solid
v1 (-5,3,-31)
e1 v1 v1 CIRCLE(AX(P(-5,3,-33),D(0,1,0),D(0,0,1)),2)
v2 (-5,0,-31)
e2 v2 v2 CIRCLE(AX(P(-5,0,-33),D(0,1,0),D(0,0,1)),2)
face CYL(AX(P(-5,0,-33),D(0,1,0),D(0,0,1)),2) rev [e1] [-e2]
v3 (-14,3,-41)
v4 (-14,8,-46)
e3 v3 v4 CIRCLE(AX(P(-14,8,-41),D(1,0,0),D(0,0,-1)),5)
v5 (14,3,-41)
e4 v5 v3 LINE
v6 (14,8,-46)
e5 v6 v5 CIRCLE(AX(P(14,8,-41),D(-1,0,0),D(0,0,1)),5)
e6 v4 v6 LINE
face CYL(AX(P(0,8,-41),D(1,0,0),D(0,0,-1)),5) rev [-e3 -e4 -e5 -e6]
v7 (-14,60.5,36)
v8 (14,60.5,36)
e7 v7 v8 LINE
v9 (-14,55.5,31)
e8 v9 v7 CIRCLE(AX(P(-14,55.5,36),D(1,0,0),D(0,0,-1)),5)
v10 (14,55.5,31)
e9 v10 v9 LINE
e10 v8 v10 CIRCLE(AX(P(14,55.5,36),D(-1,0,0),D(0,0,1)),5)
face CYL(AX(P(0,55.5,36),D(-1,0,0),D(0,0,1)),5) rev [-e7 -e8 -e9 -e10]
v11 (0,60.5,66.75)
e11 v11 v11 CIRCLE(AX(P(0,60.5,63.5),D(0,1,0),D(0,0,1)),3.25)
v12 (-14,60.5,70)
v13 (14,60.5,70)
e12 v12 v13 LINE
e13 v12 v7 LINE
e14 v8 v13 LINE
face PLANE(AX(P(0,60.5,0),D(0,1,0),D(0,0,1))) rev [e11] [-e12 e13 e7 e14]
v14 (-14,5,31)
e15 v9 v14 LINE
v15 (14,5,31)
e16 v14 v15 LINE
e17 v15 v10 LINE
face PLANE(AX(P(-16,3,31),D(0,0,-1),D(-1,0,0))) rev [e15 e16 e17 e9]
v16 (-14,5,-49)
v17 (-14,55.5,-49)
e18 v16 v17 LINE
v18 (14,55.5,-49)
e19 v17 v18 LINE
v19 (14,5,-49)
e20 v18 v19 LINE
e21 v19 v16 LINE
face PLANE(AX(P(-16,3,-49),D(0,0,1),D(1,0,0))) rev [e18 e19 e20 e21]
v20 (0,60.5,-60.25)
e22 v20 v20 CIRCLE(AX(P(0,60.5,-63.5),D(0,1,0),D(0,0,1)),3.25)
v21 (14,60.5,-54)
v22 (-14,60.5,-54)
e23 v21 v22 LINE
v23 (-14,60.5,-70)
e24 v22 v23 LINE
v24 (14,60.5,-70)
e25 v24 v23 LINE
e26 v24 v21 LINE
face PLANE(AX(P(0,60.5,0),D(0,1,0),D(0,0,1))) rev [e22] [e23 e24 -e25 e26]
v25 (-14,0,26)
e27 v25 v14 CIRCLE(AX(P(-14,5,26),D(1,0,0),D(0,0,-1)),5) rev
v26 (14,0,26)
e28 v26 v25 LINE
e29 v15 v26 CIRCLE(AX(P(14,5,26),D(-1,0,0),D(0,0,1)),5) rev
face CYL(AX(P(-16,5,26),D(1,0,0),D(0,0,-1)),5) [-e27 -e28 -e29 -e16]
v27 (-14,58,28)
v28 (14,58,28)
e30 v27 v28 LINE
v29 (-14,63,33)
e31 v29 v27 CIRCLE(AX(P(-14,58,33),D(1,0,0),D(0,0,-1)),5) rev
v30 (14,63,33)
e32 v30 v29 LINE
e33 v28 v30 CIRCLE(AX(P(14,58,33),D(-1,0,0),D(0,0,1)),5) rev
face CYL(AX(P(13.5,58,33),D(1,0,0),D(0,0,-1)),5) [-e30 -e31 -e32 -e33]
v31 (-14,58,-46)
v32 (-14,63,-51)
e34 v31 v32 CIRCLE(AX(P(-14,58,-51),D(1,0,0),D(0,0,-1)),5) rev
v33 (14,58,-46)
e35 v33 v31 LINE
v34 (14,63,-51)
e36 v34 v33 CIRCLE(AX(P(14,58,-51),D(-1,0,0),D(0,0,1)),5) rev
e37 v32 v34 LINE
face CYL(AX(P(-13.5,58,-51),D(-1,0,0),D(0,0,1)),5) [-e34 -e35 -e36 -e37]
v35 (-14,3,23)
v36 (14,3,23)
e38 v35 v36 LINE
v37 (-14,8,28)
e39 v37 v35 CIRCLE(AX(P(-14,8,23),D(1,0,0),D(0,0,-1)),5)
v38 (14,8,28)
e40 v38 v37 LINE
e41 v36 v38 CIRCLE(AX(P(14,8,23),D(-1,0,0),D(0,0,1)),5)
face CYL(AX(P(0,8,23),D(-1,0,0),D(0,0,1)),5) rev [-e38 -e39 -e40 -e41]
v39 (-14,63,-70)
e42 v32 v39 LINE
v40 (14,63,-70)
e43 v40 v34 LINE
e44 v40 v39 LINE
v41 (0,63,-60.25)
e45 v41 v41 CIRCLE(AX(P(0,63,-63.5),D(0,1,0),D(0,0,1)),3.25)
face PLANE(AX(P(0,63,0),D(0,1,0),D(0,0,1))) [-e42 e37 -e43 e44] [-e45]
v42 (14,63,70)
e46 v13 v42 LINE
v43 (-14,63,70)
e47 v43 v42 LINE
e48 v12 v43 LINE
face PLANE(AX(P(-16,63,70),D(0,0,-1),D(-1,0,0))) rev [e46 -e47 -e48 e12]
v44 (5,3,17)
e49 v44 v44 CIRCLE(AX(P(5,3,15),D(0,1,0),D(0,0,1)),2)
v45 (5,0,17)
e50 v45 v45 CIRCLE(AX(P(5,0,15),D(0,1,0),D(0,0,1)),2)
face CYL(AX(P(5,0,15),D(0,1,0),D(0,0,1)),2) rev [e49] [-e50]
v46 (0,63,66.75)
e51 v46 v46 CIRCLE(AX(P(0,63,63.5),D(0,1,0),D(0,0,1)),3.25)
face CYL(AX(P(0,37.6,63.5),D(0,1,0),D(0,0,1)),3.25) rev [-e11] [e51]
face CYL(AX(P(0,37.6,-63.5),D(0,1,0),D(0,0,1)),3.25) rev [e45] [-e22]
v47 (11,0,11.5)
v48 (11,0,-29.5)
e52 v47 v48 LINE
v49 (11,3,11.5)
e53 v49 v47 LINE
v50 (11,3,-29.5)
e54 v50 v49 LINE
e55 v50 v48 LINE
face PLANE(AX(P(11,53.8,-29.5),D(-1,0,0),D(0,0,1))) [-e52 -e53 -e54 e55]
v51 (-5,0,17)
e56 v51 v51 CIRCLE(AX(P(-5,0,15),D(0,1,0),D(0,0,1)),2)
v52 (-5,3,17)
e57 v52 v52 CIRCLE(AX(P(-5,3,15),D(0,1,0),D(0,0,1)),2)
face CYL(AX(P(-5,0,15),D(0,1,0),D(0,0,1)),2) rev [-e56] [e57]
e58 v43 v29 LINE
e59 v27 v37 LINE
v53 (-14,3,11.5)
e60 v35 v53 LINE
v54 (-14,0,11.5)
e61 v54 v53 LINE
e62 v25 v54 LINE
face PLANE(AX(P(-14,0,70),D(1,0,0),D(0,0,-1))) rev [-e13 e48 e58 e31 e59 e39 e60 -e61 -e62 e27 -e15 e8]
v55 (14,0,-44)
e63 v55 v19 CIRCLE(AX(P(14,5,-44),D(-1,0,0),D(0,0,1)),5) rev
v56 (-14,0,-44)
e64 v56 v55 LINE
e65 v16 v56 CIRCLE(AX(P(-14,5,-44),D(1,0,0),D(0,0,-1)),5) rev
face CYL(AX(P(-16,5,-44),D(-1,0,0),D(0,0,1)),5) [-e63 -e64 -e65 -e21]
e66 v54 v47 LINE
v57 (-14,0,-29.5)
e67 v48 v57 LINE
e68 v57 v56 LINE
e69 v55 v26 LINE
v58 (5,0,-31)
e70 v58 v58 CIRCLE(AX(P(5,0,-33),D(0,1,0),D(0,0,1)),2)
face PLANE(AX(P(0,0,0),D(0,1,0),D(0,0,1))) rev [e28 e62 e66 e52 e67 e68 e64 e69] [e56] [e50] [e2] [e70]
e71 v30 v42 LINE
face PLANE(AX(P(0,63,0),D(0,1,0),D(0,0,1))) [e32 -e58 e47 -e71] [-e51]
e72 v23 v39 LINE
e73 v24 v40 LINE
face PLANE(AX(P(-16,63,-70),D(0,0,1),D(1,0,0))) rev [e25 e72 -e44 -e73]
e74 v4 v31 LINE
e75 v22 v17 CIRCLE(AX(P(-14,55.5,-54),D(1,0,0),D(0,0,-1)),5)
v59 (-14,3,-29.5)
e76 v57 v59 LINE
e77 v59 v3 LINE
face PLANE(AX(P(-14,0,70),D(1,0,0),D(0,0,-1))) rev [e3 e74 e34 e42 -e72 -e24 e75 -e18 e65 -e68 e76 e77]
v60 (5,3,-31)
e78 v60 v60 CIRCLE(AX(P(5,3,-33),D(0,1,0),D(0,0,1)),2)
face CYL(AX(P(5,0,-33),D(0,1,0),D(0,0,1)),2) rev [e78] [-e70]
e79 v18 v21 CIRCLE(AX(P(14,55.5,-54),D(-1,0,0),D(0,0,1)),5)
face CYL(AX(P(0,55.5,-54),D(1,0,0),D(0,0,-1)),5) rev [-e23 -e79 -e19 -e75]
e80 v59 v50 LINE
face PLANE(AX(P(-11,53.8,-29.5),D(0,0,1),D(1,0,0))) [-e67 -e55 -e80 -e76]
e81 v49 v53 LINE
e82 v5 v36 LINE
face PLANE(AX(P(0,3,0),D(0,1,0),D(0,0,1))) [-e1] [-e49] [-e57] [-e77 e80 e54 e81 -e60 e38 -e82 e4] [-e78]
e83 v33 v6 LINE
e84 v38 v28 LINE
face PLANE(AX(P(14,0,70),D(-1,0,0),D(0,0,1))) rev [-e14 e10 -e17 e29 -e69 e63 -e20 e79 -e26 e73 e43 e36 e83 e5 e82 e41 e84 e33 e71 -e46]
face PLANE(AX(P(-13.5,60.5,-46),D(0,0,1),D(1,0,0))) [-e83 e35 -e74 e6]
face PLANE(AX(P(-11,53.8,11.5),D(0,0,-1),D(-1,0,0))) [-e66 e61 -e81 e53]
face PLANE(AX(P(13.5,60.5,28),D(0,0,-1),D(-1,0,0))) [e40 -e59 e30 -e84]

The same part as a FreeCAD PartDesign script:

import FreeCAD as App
import Part
import Sketcher
Q = App.Units.Quantity


def edges_at(feature, points):
    """Names of the edges that pass closest to the given points."""
    edges = feature.Shape.Edges
    near = lambda p: min(range(len(edges)), key=lambda i: edges[i].distToShape(Part.Vertex(*p))[0])
    return sorted({f"Edge{near(p) + 1}" for p in points})


def add_polygon(sketch, points):
    """Adds a closed chain of lines whose ends are joined by coincident constraints."""
    first, n = sketch.GeometryCount, len(points)
    for a, b in zip(points, points[1:] + points[:1]):
        sketch.addGeometry(Part.LineSegment(App.Vector(*a, 0), App.Vector(*b, 0)), False)
    for i in range(n):
        sketch.addConstraint(Sketcher.Constraint("Coincident", first + i, 2, first + (i + 1) % n, 1))

doc = App.newDocument("Part")
body = doc.addObject("PartDesign::Body", "Body")

# Sketch on XZ plane
sketch1 = body.newObject("Sketcher::SketchObject", "Sketch")
sketch1.AttachmentSupport = (doc.getObject("XZ_Plane"), [""])
sketch1.MapMode = "FlatFace"
add_polygon(sketch1, [(-16, -49), (-16, 31), (16, 31), (16, -49)])  # lines 0-3
sketch1.addConstraint([
    Sketcher.Constraint("Vertical", 0),
    Sketcher.Constraint("Horizontal", 1),
    Sketcher.Constraint("Vertical", 2),
    Sketcher.Constraint("Horizontal", 3),
    Sketcher.Constraint("DistanceX", 1, 1, 1, 2, Q("32 mm")),
    Sketcher.Constraint("DistanceY", 0, 1, 0, 2, Q("80 mm")),
    Sketcher.Constraint("DistanceX", 0, 2, -1, 1, Q("16 mm")),
    Sketcher.Constraint("DistanceY", -1, 1, 0, 2, Q("31 mm")),
])
pad1 = body.newObject("PartDesign::Pad", "Pad")
pad1.Profile = sketch1
pad1.Length = 3
pad1.Reversed = True

# Sketch on XZ plane
sketch2 = body.newObject("Sketcher::SketchObject", "Sketch001")
sketch2.AttachmentSupport = (doc.getObject("XZ_Plane"), [""])
sketch2.MapMode = "FlatFace"
sketch2.AttachmentOffset = App.Placement(App.Vector(0, 0, -3), App.Rotation())
add_polygon(sketch2, [(-16, -49), (-16, 31), (16, 31), (16, -49)])  # lines 0-3
add_polygon(sketch2, [(14, 28), (-14, 28), (-14, -46), (14, -46)])  # lines 4-7
sketch2.addConstraint([
    Sketcher.Constraint("Vertical", 0),
    Sketcher.Constraint("Horizontal", 1),
    Sketcher.Constraint("Vertical", 2),
    Sketcher.Constraint("Horizontal", 3),
    Sketcher.Constraint("Horizontal", 4),
    Sketcher.Constraint("Vertical", 5),
    Sketcher.Constraint("Horizontal", 6),
    Sketcher.Constraint("Vertical", 7),
    Sketcher.Constraint("DistanceX", 1, 1, 1, 2, Q("32 mm")),
    Sketcher.Constraint("DistanceX", 4, 2, 4, 1, Q("27 mm")),
    Sketcher.Constraint("DistanceY", 0, 1, 0, 2, Q("80 mm")),
    Sketcher.Constraint("DistanceY", 5, 2, 5, 1, Q("74 mm")),
    Sketcher.Constraint("DistanceX", 0, 2, -1, 1, Q("16 mm")),
    Sketcher.Constraint("DistanceY", -1, 1, 0, 2, Q("31 mm")),
    Sketcher.Constraint("DistanceY", -1, 1, 4, 2, Q("28 mm")),
    Sketcher.Constraint("DistanceX", 4, 2, -1, 1, Q("13.5 mm")),
])
pad2 = body.newObject("PartDesign::Pad", "Pad001")
pad2.Profile = sketch2
pad2.Length = 57.5
pad2.Reversed = True

# Sketch on XZ plane
sketch3 = body.newObject("Sketcher::SketchObject", "Sketch002")
sketch3.AttachmentSupport = (doc.getObject("XZ_Plane"), [""])
sketch3.MapMode = "FlatFace"
sketch3.AttachmentOffset = App.Placement(App.Vector(0, 0, -60.5), App.Rotation())
add_polygon(sketch3, [(-16, -70), (-16, 70), (16, 70), (16, -70)])  # lines 0-3
sketch3.addConstraint([
    Sketcher.Constraint("Vertical", 0),
    Sketcher.Constraint("Horizontal", 1),
    Sketcher.Constraint("Vertical", 2),
    Sketcher.Constraint("Horizontal", 3),
    Sketcher.Constraint("Symmetric", 0, 2, 2, 2, -1, 1),
    Sketcher.Constraint("DistanceX", 1, 1, 1, 2, Q("32 mm")),
    Sketcher.Constraint("DistanceY", 0, 1, 0, 2, Q("140 mm")),
])
pad3 = body.newObject("PartDesign::Pad", "Pad002")
pad3.Profile = sketch3
pad3.Length = 2.5
pad3.Reversed = True

# Sketch on XZ plane
sketch4 = body.newObject("Sketcher::SketchObject", "Sketch003")
sketch4.AttachmentSupport = (doc.getObject("XZ_Plane"), [""])
sketch4.MapMode = "FlatFace"
sketch4.AttachmentOffset = App.Placement(App.Vector(0, 0, -3), App.Rotation())
add_polygon(sketch4, [(-11, -30), (-11, 12), (11, 12), (11, -30)])  # lines 0-3
sketch4.addConstraint([
    Sketcher.Constraint("Vertical", 0),
    Sketcher.Constraint("Horizontal", 1),
    Sketcher.Constraint("Vertical", 2),
    Sketcher.Constraint("Horizontal", 3),
    Sketcher.Constraint("DistanceX", 1, 1, 1, 2, Q("22 mm")),
    Sketcher.Constraint("DistanceY", 0, 1, 0, 2, Q("41 mm")),
    Sketcher.Constraint("DistanceX", 0, 2, -1, 1, Q("11 mm")),
    Sketcher.Constraint("DistanceY", -1, 1, 0, 2, Q("11.5 mm")),
])
pocket1 = body.newObject("PartDesign::Pocket", "Pocket")
pocket1.Profile = sketch4
pocket1.Type = "TwoLengths"
pocket1.Length = 50.8
pocket1.Length2 = 94.573501

# Sketch on XZ plane
sketch5 = body.newObject("Sketcher::SketchObject", "Sketch004")
sketch5.AttachmentSupport = (doc.getObject("XZ_Plane"), [""])
sketch5.MapMode = "FlatFace"
sketch5.AttachmentOffset = App.Placement(App.Vector(0, 0, -63), App.Rotation())
sketch5.addGeometry(Part.Circle(App.Vector(0, -63.5, 0), App.Vector(0, 0, 1), 3.2), False)  # 0
sketch5.addGeometry(Part.Circle(App.Vector(0, 63.5, 0), App.Vector(0, 0, 1), 3.2), False)  # 1
add_polygon(sketch5, [(-11, -46), (-11, 28), (11, 28), (11, -46)])  # lines 2-5
sketch5.addConstraint([
    Sketcher.Constraint("Vertical", 2),
    Sketcher.Constraint("Horizontal", 3),
    Sketcher.Constraint("Vertical", 4),
    Sketcher.Constraint("Horizontal", 5),
    Sketcher.Constraint("Equal", 0, 1),
    Sketcher.Constraint("Symmetric", 0, 3, 1, 3, -1, 1),
    Sketcher.Constraint("PointOnObject", 0, 3, -2),
    Sketcher.Constraint("Diameter", 0, Q("6.5 mm")),
    Sketcher.Constraint("DistanceX", 3, 1, 3, 2, Q("22 mm")),
    Sketcher.Constraint("DistanceY", 2, 1, 2, 2, Q("74 mm")),
    Sketcher.Constraint("DistanceX", 2, 2, -1, 1, Q("11 mm")),
    Sketcher.Constraint("DistanceY", -1, 1, 2, 2, Q("28 mm")),
    Sketcher.Constraint("DistanceY", 0, 3, 1, 3, Q("127 mm")),
])
pocket2 = body.newObject("PartDesign::Pocket", "Pocket001")
pocket2.Profile = sketch5
pocket2.Length = 25.4
pocket2.Reversed = True

# Sketch on YZ plane
sketch6 = body.newObject("Sketcher::SketchObject", "Sketch005")
sketch6.AttachmentSupport = (doc.getObject("YZ_Plane"), [""])
sketch6.MapMode = "FlatFace"
sketch6.AttachmentOffset = App.Placement(App.Vector(0, 0, 16), App.Rotation())
add_polygon(sketch6, [(63, 28), (3, 28), (3, -46), (63, -46)])  # lines 0-3
sketch6.addConstraint([
    Sketcher.Constraint("Horizontal", 0),
    Sketcher.Constraint("Vertical", 1),
    Sketcher.Constraint("Horizontal", 2),
    Sketcher.Constraint("Vertical", 3),
    Sketcher.Constraint("DistanceX", 0, 2, 0, 1, Q("60 mm")),
    Sketcher.Constraint("DistanceY", 1, 2, 1, 1, Q("74 mm")),
    Sketcher.Constraint("DistanceX", -1, 1, 0, 2, Q("3 mm")),
    Sketcher.Constraint("DistanceY", -1, 1, 0, 2, Q("28 mm")),
])
pocket3 = body.newObject("PartDesign::Pocket", "Pocket002")
pocket3.Profile = sketch6
pocket3.Type = "ThroughAll"
pocket3.Midplane = True

# Sketch on XZ plane
sketch7 = body.newObject("Sketcher::SketchObject", "Sketch006")
sketch7.AttachmentSupport = (doc.getObject("XZ_Plane"), [""])
sketch7.MapMode = "FlatFace"
sketch7.AttachmentOffset = App.Placement(App.Vector(0, 0, -3), App.Rotation())
sketch7.addGeometry([
    Part.Circle(App.Vector(-5, -33, 0), App.Vector(0, 0, 1), 2),
    Part.Circle(App.Vector(5, -33, 0), App.Vector(0, 0, 1), 2),
    Part.Circle(App.Vector(-5, 15, 0), App.Vector(0, 0, 1), 2),
    Part.Circle(App.Vector(5, 15, 0), App.Vector(0, 0, 1), 2),
], False)
sketch7.addConstraint([
    Sketcher.Constraint("Equal", 0, 1),
    Sketcher.Constraint("Equal", 1, 2),
    Sketcher.Constraint("Equal", 2, 3),
    Sketcher.Constraint("Symmetric", 0, 3, 1, 3, -2),
    Sketcher.Constraint("Symmetric", 2, 3, 3, 3, -2),
    Sketcher.Constraint("Vertical", 0, 3, 2, 3),
    Sketcher.Constraint("Diameter", 0, Q("4 mm")),
    Sketcher.Constraint("DistanceX", 0, 3, -1, 1, Q("5 mm")),
    Sketcher.Constraint("DistanceY", 0, 3, -1, 1, Q("33 mm")),
    Sketcher.Constraint("DistanceY", -1, 1, 2, 3, Q("15 mm")),
])
pocket4 = body.newObject("PartDesign::Pocket", "Pocket003")
pocket4.Profile = sketch7
pocket4.Type = "ThroughAll"
pocket4.Reversed = True

# Sketch on XZ plane
sketch8 = body.newObject("Sketcher::SketchObject", "Sketch007")
sketch8.AttachmentSupport = (doc.getObject("XZ_Plane"), [""])
sketch8.MapMode = "FlatFace"
sketch8.AttachmentOffset = App.Placement(App.Vector(0, 0, -63), App.Rotation())
add_polygon(sketch8, [(-16, -70), (-16, 70), (-14, 70), (-14, -70)])  # lines 0-3
add_polygon(sketch8, [(14, -70), (14, 70), (16, 70), (16, -70)])  # lines 4-7
sketch8.addConstraint([
    Sketcher.Constraint("Vertical", 0),
    Sketcher.Constraint("Horizontal", 1),
    Sketcher.Constraint("Vertical", 2),
    Sketcher.Constraint("Horizontal", 3),
    Sketcher.Constraint("Vertical", 4),
    Sketcher.Constraint("Horizontal", 5),
    Sketcher.Constraint("Vertical", 6),
    Sketcher.Constraint("Horizontal", 7),
    Sketcher.Constraint("Symmetric", 2, 2, 4, 2, -1, 1),
    Sketcher.Constraint("Symmetric", 0, 2, 6, 2, -1, 1),
    Sketcher.Constraint("Horizontal", 1, 2, 4, 2),
    Sketcher.Constraint("DistanceX", 1, 1, 1, 2, Q("2 mm")),
    Sketcher.Constraint("DistanceY", 0, 1, 0, 2, Q("140 mm")),
    Sketcher.Constraint("DistanceX", 0, 2, -1, 1, Q("16 mm")),
])
pocket5 = body.newObject("PartDesign::Pocket", "Pocket004")
pocket5.Profile = sketch8
pocket5.Type = "ThroughAll"
pocket5.Reversed = True
doc.recompute()

fillet = body.newObject("PartDesign::Fillet", "Fillet")
fillet.Base = (pocket5, edges_at(pocket5, [
    (0, 63, -46),
    (0, 60.5, 31),
    (0, 60.5, -49),
    (0, 0, -49),
    (0, 0, 31),
    (0, 3, 28),
    (0, 63, 28),
    (0, 3, -46),
]))
fillet.Radius = 5

# Sketch on XZ plane
sketch9 = body.newObject("Sketcher::SketchObject", "Sketch008")
sketch9.AttachmentSupport = (doc.getObject("XZ_Plane"), [""])
sketch9.MapMode = "FlatFace"
sketch9.AttachmentOffset = App.Placement(App.Vector(0, 0, -3), App.Rotation())
add_polygon(sketch9, [(-14, -29.5), (-14, 11.5), (-11, 11.5), (-11, -29.5)])  # lines 0-3
sketch9.addConstraint([
    Sketcher.Constraint("Vertical", 0),
    Sketcher.Constraint("Horizontal", 1),
    Sketcher.Constraint("Vertical", 2),
    Sketcher.Constraint("Horizontal", 3),
    Sketcher.Constraint("DistanceX", 1, 1, 1, 2, Q("3 mm")),
    Sketcher.Constraint("DistanceY", 0, 1, 0, 2, Q("41 mm")),
    Sketcher.Constraint("DistanceX", 0, 2, -1, 1, Q("14 mm")),
    Sketcher.Constraint("DistanceY", -1, 1, 0, 2, Q("11.5 mm")),
])
pocket6 = body.newObject("PartDesign::Pocket", "Pocket005")
pocket6.Profile = sketch9
pocket6.Type = "ThroughAll"
pocket6.Reversed = True

doc.recompute()
